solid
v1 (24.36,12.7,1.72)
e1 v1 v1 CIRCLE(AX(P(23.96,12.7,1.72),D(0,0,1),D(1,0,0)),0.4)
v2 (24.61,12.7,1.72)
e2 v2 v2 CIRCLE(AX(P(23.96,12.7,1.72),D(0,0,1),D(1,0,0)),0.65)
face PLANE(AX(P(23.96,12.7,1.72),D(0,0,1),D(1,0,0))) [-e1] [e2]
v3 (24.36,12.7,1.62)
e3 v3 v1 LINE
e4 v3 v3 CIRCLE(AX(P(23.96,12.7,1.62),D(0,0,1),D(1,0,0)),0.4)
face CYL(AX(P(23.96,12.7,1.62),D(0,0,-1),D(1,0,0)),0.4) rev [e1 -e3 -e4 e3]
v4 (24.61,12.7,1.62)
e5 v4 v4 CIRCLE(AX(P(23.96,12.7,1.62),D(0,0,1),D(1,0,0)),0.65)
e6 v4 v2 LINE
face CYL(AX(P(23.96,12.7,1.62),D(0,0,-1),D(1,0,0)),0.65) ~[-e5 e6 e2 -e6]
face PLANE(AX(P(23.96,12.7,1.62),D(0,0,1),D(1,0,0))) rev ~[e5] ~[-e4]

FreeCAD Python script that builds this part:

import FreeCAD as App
import Part
import Sketcher

V = App.Vector
Q = App.Units.Quantity

doc = App.newDocument("Part")
body = doc.addObject("PartDesign::Body", "Body")

# Sketch on XY plane
sketch1 = doc.addObject("Sketcher::SketchObject", "Sketch")
body.addObject(sketch1)
sketch1.AttachmentSupport = (doc.XY_Plane, [""])
sketch1.MapMode = "FlatFace"
sketch1.AttachmentOffset = App.Placement(V(0, 0, 1.62), App.Rotation())
sketch1.addGeometry(Part.Circle(V(0, 0, 0), V(0, 0, 1), 0.4), False)
sketch1.addConstraint([
    Sketcher.Constraint("Coincident", 0, 3, -1, 1),
    Sketcher.Constraint("Diameter", 0, Q("0.8 mm")),
])
pad1 = doc.addObject("PartDesign::Pad", "Pad")
body.addObject(pad1)
pad1.Profile = sketch1
pad1.Length = 0.1
body2 = doc.addObject("PartDesign::Body", "Body001")

# Sketch on XY plane
sketch2 = doc.addObject("Sketcher::SketchObject", "Sketch001")
body2.addObject(sketch2)
sketch2.AttachmentSupport = (doc.getObject("XY_Plane001"), [""])
sketch2.MapMode = "FlatFace"
sketch2.AttachmentOffset = App.Placement(V(0, 0, 1.62), App.Rotation())
sketch2.addGeometry(Part.Circle(V(0, 0, 0), V(0, 0, 1), 0.65), False)
sketch2.addConstraint([
    Sketcher.Constraint("Coincident", 0, 3, -1, 1),
    Sketcher.Constraint("Diameter", 0, Q("1.3 mm")),
])
pad2 = doc.addObject("PartDesign::Pad", "Pad001")
body2.addObject(pad2)
pad2.Profile = sketch2
pad2.Length = 0.1
doc.recompute()

boolean = doc.addObject("PartDesign::Boolean", "Boolean")
body2.addObject(boolean)
boolean.Type = "Cut"
boolean.addObjects([body])
body3 = doc.addObject("PartDesign::Body", "Body002")
doc.recompute()

body2.Placement = App.Placement(V(23.96, 12.7, 0), App.Rotation(V(0, 0, 1), 0))
boolean2 = doc.addObject("PartDesign::Boolean", "Boolean001")
body3.addObject(boolean2)
boolean2.Type = "Fuse"
boolean2.addObjects([body2])

doc.recompute()
